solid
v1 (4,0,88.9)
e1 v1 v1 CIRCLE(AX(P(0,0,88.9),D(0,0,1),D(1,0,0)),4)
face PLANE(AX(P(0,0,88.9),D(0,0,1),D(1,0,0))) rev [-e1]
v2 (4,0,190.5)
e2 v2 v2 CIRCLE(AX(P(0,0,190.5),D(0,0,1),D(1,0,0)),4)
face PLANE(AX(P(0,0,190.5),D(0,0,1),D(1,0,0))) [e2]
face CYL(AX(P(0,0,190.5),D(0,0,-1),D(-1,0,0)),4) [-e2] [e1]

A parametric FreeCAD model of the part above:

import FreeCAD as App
import Part
import Sketcher

V = App.Vector
Q = App.Units.Quantity

doc = App.newDocument("Part")
body = doc.addObject("PartDesign::Body", "Body")

# Sketch on XY plane
sketch1 = body.newObject("Sketcher::SketchObject", "Sketch")
sketch1.AttachmentSupport = (doc.getObject("XY_Plane"), [""])
sketch1.MapMode = "FlatFace"
sketch1.AttachmentOffset = App.Placement(V(0, 0, 88.9), App.Rotation())
sketch1.addGeometry(Part.Circle(V(0, 0, 0), V(0, 0, 1), 4), False)
sketch1.addConstraint(Sketcher.Constraint("Coincident", 0, 3, -1, 1))
sketch1.addConstraint(Sketcher.Constraint("Diameter", 0, Q("8 mm")))
pad1 = body.newObject("PartDesign::Pad", "Pad")
pad1.Profile = sketch1
pad1.Length = 101.6

doc.recompute()
